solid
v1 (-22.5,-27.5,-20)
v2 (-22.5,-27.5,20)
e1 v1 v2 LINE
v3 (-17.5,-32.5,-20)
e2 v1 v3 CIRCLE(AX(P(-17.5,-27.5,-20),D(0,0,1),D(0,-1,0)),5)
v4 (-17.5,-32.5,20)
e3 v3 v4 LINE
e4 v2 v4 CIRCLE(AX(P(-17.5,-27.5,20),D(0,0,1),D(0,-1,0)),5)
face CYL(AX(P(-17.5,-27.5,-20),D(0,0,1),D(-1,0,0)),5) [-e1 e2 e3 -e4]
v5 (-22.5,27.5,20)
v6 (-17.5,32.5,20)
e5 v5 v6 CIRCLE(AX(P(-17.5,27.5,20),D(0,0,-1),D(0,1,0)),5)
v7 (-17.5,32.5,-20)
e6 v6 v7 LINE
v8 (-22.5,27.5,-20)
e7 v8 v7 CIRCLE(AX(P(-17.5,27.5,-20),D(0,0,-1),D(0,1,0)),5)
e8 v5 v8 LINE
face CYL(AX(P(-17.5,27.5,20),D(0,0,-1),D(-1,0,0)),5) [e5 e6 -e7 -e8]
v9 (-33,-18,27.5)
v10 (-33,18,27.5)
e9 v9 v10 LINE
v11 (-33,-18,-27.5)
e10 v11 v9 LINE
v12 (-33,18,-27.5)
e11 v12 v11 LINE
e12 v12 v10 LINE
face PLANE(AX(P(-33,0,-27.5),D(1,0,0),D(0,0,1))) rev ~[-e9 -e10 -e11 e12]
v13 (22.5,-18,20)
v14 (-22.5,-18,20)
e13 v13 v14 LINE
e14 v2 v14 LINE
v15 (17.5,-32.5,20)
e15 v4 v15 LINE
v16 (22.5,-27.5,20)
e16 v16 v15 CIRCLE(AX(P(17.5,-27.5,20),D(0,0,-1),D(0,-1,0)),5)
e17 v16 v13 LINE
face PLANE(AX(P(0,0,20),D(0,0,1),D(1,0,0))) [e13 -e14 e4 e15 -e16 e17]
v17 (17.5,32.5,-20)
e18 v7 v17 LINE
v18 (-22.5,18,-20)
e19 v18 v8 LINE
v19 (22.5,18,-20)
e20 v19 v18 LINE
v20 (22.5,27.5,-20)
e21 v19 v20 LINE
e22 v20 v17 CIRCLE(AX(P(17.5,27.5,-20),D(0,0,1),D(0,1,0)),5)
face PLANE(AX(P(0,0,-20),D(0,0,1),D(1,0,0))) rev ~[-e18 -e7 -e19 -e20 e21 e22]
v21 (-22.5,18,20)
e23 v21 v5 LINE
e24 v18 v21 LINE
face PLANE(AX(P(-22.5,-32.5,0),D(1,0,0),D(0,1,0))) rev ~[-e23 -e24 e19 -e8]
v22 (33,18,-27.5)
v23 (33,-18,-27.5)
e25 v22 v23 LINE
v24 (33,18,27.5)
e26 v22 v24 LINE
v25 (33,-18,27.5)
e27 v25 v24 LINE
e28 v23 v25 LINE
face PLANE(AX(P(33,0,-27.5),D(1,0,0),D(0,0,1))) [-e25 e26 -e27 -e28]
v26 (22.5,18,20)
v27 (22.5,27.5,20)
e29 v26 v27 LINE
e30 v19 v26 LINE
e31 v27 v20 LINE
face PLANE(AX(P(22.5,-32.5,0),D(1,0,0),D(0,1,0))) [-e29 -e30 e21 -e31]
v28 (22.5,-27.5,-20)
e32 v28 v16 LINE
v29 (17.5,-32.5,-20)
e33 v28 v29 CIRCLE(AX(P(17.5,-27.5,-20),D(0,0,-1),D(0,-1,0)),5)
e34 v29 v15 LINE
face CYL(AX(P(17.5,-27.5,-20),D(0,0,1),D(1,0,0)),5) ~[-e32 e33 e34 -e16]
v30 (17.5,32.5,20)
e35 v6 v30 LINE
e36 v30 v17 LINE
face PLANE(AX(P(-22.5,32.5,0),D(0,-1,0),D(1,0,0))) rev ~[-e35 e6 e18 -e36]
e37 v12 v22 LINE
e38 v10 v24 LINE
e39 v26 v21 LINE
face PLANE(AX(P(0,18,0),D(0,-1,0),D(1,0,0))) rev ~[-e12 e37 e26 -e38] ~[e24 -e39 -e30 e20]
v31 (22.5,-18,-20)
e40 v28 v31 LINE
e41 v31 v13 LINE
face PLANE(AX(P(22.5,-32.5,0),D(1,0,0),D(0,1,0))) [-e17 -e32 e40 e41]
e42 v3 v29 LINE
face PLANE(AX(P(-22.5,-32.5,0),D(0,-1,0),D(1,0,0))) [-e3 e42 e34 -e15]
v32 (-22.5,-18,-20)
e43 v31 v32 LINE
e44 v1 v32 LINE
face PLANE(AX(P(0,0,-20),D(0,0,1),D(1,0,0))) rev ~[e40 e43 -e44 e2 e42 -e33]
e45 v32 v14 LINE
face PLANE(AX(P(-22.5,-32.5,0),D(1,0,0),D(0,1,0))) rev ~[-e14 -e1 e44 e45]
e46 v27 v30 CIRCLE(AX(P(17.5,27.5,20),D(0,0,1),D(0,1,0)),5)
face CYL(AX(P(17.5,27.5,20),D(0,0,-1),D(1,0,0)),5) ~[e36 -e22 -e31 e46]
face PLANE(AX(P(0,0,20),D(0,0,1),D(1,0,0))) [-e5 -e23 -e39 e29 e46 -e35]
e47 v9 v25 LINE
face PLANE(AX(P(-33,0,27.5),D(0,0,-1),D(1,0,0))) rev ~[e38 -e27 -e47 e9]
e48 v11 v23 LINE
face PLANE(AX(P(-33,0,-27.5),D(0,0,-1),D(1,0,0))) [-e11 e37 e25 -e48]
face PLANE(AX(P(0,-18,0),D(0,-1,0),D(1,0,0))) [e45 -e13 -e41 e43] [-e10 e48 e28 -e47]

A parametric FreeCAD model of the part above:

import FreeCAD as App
import Part
import Sketcher

V = App.Vector


def edges_at(feature, points):
    """Names of the edges that pass closest to the given points."""
    edges = feature.Shape.Edges
    near = lambda p: min(range(len(edges)), key=lambda i: edges[i].distToShape(Part.Vertex(*p))[0])
    return sorted({f"Edge{near(p) + 1}" for p in points})


def add_polygon(sketch, points):
    """Adds a closed chain of lines whose ends are joined by coincident constraints."""
    first, n = sketch.GeometryCount, len(points)
    for a, b in zip(points, points[1:] + points[:1]):
        sketch.addGeometry(Part.LineSegment(App.Vector(*a, 0), App.Vector(*b, 0)), False)
    for i in range(n):
        sketch.addConstraint(Sketcher.Constraint("Coincident", first + i, 2, first + (i + 1) % n, 1))

doc = App.newDocument("Part")
body = doc.addObject("PartDesign::Body", "Body")

# Sketch on XY plane
sketch1 = doc.addObject("Sketcher::SketchObject", "Sketch")
body.addObject(sketch1)
sketch1.AttachmentSupport = (doc.XY_Plane, [""])
sketch1.MapMode = "FlatFace"
add_polygon(sketch1, [(-22.5, 32.5), (-22.5, -32.5), (22.5, -32.5), (22.5, 32.5)])  # lines 0-3
sketch1.addConstraint([
    Sketcher.Constraint("Vertical", 0),
    Sketcher.Constraint("Horizontal", 1),
    Sketcher.Constraint("Vertical", 2),
    Sketcher.Constraint("Horizontal", 3),
    Sketcher.Constraint("Symmetric", 0, 2, 2, 2, -1, 1),
    Sketcher.Constraint("DistanceX", 1, 1, 1, 2, 45.0),
    Sketcher.Constraint("DistanceY", 0, 2, 0, 1, 65.0),
])
pad1 = doc.addObject("PartDesign::Pad", "Pad")
body.addObject(pad1)
pad1.Profile = sketch1
pad1.Length = 40
pad1.Midplane = True
doc.recompute()

fillet = doc.addObject("PartDesign::Fillet", "Fillet")
body.addObject(fillet)
fillet.Base = (pad1, edges_at(pad1, [
    (-22.5, -32.5, 0),
    (22.5, -32.5, 0),
    (22.5, 32.5, 0),
    (-22.5, 32.5, 0),
]))
fillet.Radius = 5
body2 = doc.addObject("PartDesign::Body", "Body001")

# Sketch on XZ plane
sketch2 = doc.addObject("Sketcher::SketchObject", "Sketch001")
body2.addObject(sketch2)
sketch2.AttachmentSupport = (doc.getObject("XZ_Plane001"), [""])
sketch2.MapMode = "FlatFace"
add_polygon(sketch2, [(-33, 27.5), (-33, -27.5), (33, -27.5), (33, 27.5)])  # lines 0-3
sketch2.addConstraint([
    Sketcher.Constraint("Vertical", 0),
    Sketcher.Constraint("Horizontal", 1),
    Sketcher.Constraint("Vertical", 2),
    Sketcher.Constraint("Horizontal", 3),
    Sketcher.Constraint("Symmetric", 0, 2, 2, 2, -1, 1),
    Sketcher.Constraint("DistanceX", 1, 1, 1, 2, 66.0),
    Sketcher.Constraint("DistanceY", 0, 2, 0, 1, 55.0),
])
pad2 = doc.addObject("PartDesign::Pad", "Pad001")
body2.addObject(pad2)
pad2.Profile = sketch2
pad2.Length = 36
pad2.Midplane = True
doc.recompute()

boolean = doc.addObject("PartDesign::Boolean", "Boolean")
body2.addObject(boolean)
boolean.Type = "Fuse"
boolean.addObjects([body])

doc.recompute()
